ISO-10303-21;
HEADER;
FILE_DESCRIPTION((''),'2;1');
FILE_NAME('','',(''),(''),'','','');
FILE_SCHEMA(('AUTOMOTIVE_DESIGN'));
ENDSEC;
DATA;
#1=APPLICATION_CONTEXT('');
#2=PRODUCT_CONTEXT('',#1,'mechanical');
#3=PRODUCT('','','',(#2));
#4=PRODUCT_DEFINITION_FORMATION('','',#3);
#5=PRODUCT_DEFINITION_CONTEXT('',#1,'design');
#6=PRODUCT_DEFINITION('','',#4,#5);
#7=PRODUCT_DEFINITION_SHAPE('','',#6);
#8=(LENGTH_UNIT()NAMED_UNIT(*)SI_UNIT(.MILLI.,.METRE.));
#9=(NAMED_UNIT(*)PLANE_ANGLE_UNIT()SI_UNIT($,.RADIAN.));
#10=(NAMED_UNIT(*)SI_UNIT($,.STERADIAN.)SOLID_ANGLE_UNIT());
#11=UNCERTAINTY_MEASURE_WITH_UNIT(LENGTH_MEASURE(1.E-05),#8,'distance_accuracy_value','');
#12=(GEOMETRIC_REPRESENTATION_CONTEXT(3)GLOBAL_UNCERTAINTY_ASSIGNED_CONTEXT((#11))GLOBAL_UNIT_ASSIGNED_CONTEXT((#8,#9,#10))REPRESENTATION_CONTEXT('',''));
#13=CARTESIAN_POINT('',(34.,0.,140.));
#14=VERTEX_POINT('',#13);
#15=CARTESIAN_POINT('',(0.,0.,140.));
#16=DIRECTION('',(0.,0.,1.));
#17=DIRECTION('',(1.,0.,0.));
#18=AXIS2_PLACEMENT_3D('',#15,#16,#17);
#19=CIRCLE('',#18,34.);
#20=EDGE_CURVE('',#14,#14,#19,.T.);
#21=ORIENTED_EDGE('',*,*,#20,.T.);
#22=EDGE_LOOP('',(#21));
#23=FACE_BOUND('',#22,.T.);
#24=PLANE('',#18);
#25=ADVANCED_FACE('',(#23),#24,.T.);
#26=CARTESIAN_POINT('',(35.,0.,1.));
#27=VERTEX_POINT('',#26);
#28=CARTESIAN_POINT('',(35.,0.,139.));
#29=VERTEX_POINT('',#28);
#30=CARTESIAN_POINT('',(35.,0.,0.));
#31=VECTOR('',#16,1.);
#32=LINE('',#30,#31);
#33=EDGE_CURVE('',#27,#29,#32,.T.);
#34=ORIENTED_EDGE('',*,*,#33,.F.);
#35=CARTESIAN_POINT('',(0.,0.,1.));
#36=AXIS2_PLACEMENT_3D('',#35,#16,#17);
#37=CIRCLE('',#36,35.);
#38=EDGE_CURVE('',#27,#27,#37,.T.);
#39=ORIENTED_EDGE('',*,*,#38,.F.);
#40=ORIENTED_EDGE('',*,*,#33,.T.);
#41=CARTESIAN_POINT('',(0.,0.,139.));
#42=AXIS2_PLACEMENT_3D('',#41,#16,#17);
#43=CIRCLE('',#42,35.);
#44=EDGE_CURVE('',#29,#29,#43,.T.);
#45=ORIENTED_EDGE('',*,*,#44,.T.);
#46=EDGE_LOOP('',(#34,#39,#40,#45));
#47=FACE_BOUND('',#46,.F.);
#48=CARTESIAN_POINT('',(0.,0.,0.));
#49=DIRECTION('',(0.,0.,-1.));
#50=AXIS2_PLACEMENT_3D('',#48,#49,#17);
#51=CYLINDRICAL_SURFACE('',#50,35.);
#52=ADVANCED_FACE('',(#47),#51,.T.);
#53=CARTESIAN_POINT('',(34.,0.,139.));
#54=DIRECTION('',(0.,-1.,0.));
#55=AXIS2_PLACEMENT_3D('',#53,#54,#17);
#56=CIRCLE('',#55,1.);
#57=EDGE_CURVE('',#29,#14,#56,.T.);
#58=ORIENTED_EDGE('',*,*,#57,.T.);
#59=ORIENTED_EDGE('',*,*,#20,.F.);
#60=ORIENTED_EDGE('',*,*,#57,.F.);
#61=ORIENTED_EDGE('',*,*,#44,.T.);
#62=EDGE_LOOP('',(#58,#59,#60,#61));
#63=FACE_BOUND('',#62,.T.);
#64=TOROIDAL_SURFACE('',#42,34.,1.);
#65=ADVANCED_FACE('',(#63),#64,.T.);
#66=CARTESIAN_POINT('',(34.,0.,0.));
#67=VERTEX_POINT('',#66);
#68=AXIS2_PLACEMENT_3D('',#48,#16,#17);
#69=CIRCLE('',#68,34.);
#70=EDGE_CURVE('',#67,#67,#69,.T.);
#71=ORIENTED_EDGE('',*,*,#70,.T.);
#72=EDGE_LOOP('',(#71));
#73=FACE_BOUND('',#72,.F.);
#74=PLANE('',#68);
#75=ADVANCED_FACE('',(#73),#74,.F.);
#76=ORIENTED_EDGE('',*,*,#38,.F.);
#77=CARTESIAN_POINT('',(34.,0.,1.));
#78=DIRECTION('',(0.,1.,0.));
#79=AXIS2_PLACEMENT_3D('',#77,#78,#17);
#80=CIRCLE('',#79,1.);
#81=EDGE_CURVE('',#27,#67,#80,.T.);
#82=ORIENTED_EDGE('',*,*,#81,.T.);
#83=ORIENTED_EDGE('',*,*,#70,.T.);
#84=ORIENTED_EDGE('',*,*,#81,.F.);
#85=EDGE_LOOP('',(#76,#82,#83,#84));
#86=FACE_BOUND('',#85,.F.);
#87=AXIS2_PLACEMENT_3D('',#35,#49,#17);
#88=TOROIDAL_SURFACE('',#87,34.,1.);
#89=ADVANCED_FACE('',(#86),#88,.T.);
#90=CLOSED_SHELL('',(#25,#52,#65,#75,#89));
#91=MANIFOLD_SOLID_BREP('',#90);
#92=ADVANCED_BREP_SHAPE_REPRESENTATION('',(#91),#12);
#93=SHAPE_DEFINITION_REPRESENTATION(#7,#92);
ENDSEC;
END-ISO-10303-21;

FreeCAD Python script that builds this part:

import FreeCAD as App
import Part
import Sketcher
Q = App.Units.Quantity


def edges_at(feature, points):
    """Names of the edges that pass closest to the given points."""
    edges = feature.Shape.Edges
    near = lambda p: min(range(len(edges)), key=lambda i: edges[i].distToShape(Part.Vertex(*p))[0])
    return sorted({f"Edge{near(p) + 1}" for p in points})

doc = App.newDocument("Part")
body = doc.addObject("PartDesign::Body", "Body")

sketch1 = doc.addObject("Sketcher::SketchObject", "Sketch")
body.addObject(sketch1)
sketch1.AttachmentSupport = (doc.XY_Plane, [""])
sketch1.MapMode = "FlatFace"
sketch1.addGeometry(Part.Circle(App.Vector(0, 0, 0), App.Vector(0, 0, 1), 35), False)
sketch1.addConstraint([
    Sketcher.Constraint("Coincident", 0, 3, -1, 1),
    Sketcher.Constraint("Diameter", 0, Q("70 mm")),
])
pad1 = doc.addObject("PartDesign::Pad", "Pad")
body.addObject(pad1)
pad1.Profile = sketch1
pad1.Length = 140
doc.recompute()

fillet = doc.addObject("PartDesign::Fillet", "Fillet")
body.addObject(fillet)
fillet.Base = (pad1, edges_at(pad1, [(-35, 0, 140), (-35, 0, 0)]))
fillet.Radius = 1

doc.recompute()
